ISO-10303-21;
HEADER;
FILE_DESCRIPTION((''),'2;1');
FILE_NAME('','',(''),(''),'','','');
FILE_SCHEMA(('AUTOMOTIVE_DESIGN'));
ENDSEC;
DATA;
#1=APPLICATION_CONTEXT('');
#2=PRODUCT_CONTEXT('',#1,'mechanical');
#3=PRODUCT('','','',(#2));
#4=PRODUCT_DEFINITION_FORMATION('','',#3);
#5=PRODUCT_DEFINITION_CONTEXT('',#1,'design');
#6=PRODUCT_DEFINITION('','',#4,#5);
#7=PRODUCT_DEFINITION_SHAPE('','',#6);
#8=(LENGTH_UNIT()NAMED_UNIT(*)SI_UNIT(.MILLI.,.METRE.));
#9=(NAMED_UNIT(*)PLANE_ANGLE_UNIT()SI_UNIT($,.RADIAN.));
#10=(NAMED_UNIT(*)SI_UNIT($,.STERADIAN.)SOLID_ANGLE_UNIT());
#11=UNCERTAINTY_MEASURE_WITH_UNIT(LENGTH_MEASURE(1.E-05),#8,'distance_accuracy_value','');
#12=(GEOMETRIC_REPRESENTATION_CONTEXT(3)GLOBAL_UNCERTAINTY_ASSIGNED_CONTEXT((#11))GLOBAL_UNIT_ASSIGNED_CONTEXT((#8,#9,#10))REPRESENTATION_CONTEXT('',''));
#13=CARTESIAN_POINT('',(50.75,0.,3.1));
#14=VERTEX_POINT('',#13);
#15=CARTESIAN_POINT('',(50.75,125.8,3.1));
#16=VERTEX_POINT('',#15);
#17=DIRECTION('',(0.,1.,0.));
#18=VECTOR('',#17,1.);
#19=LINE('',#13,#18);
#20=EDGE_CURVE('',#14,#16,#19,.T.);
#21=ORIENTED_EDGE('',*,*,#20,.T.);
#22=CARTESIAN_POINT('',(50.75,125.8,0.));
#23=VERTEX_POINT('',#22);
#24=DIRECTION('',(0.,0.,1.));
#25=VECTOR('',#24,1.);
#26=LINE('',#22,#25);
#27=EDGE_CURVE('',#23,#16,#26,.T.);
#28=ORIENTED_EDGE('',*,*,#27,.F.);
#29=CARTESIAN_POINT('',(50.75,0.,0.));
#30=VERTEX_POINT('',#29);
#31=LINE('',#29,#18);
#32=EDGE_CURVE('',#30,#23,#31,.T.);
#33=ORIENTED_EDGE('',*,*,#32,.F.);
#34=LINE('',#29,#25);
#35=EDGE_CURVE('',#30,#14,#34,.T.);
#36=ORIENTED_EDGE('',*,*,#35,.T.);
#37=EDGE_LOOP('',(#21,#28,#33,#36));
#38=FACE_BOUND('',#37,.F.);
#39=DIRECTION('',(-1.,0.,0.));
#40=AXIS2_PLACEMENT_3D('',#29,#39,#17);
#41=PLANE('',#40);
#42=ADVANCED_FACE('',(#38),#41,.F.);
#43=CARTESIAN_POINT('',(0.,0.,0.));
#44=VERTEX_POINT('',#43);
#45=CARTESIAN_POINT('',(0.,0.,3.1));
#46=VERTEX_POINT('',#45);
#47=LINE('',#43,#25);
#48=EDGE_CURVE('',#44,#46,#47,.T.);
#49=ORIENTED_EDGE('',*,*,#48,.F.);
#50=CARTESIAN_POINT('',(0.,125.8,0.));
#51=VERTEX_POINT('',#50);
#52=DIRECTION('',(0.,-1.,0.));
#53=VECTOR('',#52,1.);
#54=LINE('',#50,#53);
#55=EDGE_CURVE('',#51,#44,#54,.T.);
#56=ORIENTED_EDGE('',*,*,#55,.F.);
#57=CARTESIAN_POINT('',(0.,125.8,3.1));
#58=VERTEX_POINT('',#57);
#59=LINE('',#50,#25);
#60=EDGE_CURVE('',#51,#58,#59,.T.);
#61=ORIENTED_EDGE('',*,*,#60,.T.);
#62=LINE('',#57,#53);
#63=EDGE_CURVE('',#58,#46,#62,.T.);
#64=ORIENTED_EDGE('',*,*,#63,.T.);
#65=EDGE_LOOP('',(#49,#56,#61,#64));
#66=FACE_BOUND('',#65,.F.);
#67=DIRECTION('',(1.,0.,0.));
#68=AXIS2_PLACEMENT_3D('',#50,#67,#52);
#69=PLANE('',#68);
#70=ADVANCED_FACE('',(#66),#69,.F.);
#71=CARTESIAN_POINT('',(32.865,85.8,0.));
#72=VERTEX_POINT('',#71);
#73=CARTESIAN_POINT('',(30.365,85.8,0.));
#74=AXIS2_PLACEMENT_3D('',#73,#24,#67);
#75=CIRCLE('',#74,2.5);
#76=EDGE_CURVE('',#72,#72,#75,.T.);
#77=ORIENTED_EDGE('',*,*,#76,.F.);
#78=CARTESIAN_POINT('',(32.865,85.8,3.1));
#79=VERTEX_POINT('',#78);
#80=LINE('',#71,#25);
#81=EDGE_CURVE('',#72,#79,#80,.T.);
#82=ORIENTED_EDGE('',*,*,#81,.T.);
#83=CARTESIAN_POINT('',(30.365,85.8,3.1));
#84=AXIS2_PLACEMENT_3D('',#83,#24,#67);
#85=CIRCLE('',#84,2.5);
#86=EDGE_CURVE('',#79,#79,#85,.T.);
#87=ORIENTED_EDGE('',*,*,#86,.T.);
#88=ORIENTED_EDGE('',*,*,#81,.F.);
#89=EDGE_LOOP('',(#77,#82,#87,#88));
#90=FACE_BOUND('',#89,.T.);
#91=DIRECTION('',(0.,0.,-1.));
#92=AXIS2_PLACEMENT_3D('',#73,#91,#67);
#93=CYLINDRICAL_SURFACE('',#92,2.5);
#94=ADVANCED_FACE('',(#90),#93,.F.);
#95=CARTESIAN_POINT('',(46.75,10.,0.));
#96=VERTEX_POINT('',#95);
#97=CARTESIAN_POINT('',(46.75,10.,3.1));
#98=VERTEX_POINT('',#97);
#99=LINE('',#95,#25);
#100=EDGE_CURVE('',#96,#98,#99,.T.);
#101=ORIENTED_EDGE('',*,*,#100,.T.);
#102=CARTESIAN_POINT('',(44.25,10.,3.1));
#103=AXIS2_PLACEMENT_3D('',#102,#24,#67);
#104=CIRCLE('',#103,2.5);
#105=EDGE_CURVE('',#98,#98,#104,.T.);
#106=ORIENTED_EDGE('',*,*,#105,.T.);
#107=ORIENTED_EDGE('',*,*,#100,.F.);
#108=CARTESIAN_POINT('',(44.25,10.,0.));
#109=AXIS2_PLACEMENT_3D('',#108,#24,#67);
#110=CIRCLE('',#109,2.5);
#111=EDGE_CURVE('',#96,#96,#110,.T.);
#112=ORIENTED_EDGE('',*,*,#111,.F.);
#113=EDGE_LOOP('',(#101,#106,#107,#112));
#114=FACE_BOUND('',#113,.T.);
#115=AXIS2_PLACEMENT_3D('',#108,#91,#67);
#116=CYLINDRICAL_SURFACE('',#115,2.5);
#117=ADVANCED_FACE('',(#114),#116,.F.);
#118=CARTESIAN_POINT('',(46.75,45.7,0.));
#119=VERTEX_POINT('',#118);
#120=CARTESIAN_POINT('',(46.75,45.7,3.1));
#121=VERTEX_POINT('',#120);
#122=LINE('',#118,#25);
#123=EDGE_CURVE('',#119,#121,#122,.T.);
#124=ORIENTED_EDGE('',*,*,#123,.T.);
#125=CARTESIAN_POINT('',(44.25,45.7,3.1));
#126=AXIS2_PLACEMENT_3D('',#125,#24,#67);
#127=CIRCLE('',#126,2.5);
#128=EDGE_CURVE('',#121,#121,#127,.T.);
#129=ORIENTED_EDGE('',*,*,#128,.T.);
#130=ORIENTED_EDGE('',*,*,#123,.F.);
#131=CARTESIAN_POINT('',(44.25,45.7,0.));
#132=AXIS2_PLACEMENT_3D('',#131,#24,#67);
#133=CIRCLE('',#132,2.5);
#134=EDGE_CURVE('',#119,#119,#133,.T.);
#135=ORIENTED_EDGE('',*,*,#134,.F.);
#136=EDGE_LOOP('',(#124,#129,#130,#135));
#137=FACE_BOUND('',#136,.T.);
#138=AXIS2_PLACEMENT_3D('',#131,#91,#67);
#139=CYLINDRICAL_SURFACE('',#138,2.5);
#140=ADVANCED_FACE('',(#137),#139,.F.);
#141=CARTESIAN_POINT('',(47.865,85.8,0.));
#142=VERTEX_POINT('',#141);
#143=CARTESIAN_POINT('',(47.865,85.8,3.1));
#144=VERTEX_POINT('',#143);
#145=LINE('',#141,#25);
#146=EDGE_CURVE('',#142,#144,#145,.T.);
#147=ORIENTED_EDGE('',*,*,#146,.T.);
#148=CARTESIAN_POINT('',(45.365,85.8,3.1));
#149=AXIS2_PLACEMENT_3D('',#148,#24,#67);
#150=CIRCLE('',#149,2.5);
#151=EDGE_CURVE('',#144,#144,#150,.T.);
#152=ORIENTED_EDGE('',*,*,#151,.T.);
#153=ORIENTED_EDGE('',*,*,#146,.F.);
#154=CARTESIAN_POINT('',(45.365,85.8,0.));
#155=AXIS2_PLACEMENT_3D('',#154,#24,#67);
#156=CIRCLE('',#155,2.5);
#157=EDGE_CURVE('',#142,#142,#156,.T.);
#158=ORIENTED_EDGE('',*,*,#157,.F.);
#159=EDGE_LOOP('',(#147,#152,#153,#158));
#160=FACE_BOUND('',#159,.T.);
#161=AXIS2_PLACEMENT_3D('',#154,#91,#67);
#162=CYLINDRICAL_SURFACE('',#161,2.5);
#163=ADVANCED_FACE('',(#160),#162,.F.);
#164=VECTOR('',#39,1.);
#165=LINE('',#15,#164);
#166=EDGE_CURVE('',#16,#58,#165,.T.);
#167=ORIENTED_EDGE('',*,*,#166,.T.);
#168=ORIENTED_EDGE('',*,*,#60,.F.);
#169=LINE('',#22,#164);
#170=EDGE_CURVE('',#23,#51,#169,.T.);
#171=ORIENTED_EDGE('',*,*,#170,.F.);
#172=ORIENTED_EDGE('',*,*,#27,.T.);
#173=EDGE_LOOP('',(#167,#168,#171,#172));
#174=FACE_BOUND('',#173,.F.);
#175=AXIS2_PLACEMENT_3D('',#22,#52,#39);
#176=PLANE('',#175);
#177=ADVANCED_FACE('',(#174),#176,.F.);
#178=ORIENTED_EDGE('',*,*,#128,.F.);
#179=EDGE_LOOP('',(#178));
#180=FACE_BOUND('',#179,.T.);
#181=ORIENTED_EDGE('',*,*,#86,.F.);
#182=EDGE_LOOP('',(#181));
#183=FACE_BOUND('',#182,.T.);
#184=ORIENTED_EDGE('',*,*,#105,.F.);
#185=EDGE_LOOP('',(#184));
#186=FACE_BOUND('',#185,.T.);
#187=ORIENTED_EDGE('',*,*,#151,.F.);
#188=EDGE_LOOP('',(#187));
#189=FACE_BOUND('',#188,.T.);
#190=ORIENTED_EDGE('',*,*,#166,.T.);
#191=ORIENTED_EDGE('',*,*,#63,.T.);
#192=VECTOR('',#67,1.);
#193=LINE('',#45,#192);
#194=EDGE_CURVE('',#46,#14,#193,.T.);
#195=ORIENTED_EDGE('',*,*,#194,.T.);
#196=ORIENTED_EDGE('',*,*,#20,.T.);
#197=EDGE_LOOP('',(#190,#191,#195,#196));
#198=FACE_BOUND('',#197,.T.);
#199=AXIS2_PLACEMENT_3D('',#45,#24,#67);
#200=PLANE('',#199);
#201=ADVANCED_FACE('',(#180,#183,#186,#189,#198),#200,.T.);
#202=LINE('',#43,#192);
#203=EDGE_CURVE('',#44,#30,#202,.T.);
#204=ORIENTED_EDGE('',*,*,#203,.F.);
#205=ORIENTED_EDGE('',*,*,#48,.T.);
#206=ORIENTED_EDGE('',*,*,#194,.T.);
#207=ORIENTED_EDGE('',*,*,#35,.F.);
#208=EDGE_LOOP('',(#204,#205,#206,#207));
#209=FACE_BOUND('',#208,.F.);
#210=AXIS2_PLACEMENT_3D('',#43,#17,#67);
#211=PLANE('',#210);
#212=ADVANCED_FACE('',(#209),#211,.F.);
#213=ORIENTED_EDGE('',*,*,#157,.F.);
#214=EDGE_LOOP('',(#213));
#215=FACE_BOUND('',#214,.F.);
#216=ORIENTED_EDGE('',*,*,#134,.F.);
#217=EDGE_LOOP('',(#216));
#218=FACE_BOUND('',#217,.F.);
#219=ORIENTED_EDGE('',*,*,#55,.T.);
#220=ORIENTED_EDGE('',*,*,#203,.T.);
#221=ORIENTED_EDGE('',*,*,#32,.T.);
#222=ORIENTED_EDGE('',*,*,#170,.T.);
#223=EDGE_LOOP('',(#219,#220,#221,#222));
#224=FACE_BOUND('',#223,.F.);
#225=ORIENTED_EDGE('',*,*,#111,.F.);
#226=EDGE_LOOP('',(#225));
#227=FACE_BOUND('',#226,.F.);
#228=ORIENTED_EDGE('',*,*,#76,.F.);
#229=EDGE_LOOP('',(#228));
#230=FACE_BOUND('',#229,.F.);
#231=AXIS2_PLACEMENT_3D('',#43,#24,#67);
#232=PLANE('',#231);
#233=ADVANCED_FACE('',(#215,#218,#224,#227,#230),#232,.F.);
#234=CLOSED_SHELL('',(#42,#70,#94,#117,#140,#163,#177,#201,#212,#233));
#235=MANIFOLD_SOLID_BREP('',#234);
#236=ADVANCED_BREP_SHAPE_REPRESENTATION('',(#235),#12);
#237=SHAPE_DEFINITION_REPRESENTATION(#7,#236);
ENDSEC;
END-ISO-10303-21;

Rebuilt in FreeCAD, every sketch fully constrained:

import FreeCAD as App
import Part
import Sketcher
Q = App.Units.Quantity

doc = App.newDocument("Part")
params = doc.addObject("Spreadsheet::Sheet", "Params")
for row, (alias, value) in enumerate([
    ("sketch1_diameter", "5 mm"),
    ("sketch1_height", "125.8 mm"),
    ("sketch1_width", "50.75 mm"),
    ("pad1_length", "3.1 mm"),
], start=1):
    params.set(f"A{row}", alias)
    params.set(f"B{row}", "=" + value)
    params.setAlias(f"B{row}", alias)

body = doc.addObject("PartDesign::Body", "Body")

# Sketch on XY plane
sketch1 = doc.addObject("Sketcher::SketchObject", "Sketch")
body.addObject(sketch1)
sketch1.AttachmentSupport = (doc.XY_Plane, [""])
sketch1.MapMode = "FlatFace"
sketch1.addGeometry([
    Part.LineSegment(App.Vector(0, 0, 0), App.Vector(50.8, 0, 0)),  # 0
    Part.LineSegment(App.Vector(50.8, 0, 0), App.Vector(50.8, 125.8, 0)),  # 1
    Part.LineSegment(App.Vector(50.8, 125.8, 0), App.Vector(0, 125.8, 0)),  # 2
    Part.LineSegment(App.Vector(0, 125.8, 0), App.Vector(0, 0, 0)),  # 3
    Part.Circle(App.Vector(44.2, 10, 0), App.Vector(0, 0, 1), 2.5),  # 4
    Part.Circle(App.Vector(44.2, 45.7, 0), App.Vector(0, 0, 1), 2.5),  # 5
    Part.Circle(App.Vector(30.4, 85.8, 0), App.Vector(0, 0, 1), 2.5),  # 6
    Part.Circle(App.Vector(45.4, 85.8, 0), App.Vector(0, 0, 1), 2.5),  # 7
], False)
sketch1.addConstraint([
    Sketcher.Constraint("Coincident", 0, 2, 1, 1),
    Sketcher.Constraint("Coincident", 1, 2, 2, 1),
    Sketcher.Constraint("Coincident", 2, 2, 3, 1),
    Sketcher.Constraint("Coincident", 3, 2, 0, 1),
    Sketcher.Constraint("Horizontal", 0),
    Sketcher.Constraint("Vertical", 1),
    Sketcher.Constraint("Horizontal", 2),
    Sketcher.Constraint("Vertical", 3),
    Sketcher.Constraint("Coincident", 3, 2, -1, 1),
    Sketcher.Constraint("Equal", 4, 5),
    Sketcher.Constraint("Equal", 5, 6),
    Sketcher.Constraint("Equal", 6, 7),
    Sketcher.Constraint("Horizontal", 6, 3, 7, 3),
    Sketcher.Constraint("Vertical", 4, 3, 5, 3),
    Sketcher.Constraint("Diameter", 4, Q("5 mm")),
    Sketcher.Constraint("DistanceY", 1, 1, 1, 2, Q("125.8 mm")),
    Sketcher.Constraint("DistanceY", -1, 1, 4, 3, Q("10 mm")),
    Sketcher.Constraint("DistanceX", 6, 3, 7, 3, Q("15 mm")),
    Sketcher.Constraint("DistanceY", 7, 3, 1, 2, Q("40 mm")),
    Sketcher.Constraint("DistanceX", 0, 1, 0, 2, Q("50.75 mm")),
    Sketcher.Constraint("DistanceY", 4, 3, 5, 3, Q("35.7 mm")),
    Sketcher.Constraint("DistanceX", 4, 3, 0, 2, Q("6.5 mm")),
    Sketcher.Constraint("DistanceX", 7, 3, 0, 2, Q("5.385 mm")),
])
sketch1.setExpression("Constraints[14]", "Params.sketch1_diameter")
sketch1.setExpression("Constraints[15]", "Params.sketch1_height")
sketch1.setExpression("Constraints[19]", "Params.sketch1_width")
pad1 = doc.addObject("PartDesign::Pad", "Pad")
body.addObject(pad1)
pad1.Profile = sketch1
pad1.setExpression("Length", "Params.pad1_length")

doc.recompute()
